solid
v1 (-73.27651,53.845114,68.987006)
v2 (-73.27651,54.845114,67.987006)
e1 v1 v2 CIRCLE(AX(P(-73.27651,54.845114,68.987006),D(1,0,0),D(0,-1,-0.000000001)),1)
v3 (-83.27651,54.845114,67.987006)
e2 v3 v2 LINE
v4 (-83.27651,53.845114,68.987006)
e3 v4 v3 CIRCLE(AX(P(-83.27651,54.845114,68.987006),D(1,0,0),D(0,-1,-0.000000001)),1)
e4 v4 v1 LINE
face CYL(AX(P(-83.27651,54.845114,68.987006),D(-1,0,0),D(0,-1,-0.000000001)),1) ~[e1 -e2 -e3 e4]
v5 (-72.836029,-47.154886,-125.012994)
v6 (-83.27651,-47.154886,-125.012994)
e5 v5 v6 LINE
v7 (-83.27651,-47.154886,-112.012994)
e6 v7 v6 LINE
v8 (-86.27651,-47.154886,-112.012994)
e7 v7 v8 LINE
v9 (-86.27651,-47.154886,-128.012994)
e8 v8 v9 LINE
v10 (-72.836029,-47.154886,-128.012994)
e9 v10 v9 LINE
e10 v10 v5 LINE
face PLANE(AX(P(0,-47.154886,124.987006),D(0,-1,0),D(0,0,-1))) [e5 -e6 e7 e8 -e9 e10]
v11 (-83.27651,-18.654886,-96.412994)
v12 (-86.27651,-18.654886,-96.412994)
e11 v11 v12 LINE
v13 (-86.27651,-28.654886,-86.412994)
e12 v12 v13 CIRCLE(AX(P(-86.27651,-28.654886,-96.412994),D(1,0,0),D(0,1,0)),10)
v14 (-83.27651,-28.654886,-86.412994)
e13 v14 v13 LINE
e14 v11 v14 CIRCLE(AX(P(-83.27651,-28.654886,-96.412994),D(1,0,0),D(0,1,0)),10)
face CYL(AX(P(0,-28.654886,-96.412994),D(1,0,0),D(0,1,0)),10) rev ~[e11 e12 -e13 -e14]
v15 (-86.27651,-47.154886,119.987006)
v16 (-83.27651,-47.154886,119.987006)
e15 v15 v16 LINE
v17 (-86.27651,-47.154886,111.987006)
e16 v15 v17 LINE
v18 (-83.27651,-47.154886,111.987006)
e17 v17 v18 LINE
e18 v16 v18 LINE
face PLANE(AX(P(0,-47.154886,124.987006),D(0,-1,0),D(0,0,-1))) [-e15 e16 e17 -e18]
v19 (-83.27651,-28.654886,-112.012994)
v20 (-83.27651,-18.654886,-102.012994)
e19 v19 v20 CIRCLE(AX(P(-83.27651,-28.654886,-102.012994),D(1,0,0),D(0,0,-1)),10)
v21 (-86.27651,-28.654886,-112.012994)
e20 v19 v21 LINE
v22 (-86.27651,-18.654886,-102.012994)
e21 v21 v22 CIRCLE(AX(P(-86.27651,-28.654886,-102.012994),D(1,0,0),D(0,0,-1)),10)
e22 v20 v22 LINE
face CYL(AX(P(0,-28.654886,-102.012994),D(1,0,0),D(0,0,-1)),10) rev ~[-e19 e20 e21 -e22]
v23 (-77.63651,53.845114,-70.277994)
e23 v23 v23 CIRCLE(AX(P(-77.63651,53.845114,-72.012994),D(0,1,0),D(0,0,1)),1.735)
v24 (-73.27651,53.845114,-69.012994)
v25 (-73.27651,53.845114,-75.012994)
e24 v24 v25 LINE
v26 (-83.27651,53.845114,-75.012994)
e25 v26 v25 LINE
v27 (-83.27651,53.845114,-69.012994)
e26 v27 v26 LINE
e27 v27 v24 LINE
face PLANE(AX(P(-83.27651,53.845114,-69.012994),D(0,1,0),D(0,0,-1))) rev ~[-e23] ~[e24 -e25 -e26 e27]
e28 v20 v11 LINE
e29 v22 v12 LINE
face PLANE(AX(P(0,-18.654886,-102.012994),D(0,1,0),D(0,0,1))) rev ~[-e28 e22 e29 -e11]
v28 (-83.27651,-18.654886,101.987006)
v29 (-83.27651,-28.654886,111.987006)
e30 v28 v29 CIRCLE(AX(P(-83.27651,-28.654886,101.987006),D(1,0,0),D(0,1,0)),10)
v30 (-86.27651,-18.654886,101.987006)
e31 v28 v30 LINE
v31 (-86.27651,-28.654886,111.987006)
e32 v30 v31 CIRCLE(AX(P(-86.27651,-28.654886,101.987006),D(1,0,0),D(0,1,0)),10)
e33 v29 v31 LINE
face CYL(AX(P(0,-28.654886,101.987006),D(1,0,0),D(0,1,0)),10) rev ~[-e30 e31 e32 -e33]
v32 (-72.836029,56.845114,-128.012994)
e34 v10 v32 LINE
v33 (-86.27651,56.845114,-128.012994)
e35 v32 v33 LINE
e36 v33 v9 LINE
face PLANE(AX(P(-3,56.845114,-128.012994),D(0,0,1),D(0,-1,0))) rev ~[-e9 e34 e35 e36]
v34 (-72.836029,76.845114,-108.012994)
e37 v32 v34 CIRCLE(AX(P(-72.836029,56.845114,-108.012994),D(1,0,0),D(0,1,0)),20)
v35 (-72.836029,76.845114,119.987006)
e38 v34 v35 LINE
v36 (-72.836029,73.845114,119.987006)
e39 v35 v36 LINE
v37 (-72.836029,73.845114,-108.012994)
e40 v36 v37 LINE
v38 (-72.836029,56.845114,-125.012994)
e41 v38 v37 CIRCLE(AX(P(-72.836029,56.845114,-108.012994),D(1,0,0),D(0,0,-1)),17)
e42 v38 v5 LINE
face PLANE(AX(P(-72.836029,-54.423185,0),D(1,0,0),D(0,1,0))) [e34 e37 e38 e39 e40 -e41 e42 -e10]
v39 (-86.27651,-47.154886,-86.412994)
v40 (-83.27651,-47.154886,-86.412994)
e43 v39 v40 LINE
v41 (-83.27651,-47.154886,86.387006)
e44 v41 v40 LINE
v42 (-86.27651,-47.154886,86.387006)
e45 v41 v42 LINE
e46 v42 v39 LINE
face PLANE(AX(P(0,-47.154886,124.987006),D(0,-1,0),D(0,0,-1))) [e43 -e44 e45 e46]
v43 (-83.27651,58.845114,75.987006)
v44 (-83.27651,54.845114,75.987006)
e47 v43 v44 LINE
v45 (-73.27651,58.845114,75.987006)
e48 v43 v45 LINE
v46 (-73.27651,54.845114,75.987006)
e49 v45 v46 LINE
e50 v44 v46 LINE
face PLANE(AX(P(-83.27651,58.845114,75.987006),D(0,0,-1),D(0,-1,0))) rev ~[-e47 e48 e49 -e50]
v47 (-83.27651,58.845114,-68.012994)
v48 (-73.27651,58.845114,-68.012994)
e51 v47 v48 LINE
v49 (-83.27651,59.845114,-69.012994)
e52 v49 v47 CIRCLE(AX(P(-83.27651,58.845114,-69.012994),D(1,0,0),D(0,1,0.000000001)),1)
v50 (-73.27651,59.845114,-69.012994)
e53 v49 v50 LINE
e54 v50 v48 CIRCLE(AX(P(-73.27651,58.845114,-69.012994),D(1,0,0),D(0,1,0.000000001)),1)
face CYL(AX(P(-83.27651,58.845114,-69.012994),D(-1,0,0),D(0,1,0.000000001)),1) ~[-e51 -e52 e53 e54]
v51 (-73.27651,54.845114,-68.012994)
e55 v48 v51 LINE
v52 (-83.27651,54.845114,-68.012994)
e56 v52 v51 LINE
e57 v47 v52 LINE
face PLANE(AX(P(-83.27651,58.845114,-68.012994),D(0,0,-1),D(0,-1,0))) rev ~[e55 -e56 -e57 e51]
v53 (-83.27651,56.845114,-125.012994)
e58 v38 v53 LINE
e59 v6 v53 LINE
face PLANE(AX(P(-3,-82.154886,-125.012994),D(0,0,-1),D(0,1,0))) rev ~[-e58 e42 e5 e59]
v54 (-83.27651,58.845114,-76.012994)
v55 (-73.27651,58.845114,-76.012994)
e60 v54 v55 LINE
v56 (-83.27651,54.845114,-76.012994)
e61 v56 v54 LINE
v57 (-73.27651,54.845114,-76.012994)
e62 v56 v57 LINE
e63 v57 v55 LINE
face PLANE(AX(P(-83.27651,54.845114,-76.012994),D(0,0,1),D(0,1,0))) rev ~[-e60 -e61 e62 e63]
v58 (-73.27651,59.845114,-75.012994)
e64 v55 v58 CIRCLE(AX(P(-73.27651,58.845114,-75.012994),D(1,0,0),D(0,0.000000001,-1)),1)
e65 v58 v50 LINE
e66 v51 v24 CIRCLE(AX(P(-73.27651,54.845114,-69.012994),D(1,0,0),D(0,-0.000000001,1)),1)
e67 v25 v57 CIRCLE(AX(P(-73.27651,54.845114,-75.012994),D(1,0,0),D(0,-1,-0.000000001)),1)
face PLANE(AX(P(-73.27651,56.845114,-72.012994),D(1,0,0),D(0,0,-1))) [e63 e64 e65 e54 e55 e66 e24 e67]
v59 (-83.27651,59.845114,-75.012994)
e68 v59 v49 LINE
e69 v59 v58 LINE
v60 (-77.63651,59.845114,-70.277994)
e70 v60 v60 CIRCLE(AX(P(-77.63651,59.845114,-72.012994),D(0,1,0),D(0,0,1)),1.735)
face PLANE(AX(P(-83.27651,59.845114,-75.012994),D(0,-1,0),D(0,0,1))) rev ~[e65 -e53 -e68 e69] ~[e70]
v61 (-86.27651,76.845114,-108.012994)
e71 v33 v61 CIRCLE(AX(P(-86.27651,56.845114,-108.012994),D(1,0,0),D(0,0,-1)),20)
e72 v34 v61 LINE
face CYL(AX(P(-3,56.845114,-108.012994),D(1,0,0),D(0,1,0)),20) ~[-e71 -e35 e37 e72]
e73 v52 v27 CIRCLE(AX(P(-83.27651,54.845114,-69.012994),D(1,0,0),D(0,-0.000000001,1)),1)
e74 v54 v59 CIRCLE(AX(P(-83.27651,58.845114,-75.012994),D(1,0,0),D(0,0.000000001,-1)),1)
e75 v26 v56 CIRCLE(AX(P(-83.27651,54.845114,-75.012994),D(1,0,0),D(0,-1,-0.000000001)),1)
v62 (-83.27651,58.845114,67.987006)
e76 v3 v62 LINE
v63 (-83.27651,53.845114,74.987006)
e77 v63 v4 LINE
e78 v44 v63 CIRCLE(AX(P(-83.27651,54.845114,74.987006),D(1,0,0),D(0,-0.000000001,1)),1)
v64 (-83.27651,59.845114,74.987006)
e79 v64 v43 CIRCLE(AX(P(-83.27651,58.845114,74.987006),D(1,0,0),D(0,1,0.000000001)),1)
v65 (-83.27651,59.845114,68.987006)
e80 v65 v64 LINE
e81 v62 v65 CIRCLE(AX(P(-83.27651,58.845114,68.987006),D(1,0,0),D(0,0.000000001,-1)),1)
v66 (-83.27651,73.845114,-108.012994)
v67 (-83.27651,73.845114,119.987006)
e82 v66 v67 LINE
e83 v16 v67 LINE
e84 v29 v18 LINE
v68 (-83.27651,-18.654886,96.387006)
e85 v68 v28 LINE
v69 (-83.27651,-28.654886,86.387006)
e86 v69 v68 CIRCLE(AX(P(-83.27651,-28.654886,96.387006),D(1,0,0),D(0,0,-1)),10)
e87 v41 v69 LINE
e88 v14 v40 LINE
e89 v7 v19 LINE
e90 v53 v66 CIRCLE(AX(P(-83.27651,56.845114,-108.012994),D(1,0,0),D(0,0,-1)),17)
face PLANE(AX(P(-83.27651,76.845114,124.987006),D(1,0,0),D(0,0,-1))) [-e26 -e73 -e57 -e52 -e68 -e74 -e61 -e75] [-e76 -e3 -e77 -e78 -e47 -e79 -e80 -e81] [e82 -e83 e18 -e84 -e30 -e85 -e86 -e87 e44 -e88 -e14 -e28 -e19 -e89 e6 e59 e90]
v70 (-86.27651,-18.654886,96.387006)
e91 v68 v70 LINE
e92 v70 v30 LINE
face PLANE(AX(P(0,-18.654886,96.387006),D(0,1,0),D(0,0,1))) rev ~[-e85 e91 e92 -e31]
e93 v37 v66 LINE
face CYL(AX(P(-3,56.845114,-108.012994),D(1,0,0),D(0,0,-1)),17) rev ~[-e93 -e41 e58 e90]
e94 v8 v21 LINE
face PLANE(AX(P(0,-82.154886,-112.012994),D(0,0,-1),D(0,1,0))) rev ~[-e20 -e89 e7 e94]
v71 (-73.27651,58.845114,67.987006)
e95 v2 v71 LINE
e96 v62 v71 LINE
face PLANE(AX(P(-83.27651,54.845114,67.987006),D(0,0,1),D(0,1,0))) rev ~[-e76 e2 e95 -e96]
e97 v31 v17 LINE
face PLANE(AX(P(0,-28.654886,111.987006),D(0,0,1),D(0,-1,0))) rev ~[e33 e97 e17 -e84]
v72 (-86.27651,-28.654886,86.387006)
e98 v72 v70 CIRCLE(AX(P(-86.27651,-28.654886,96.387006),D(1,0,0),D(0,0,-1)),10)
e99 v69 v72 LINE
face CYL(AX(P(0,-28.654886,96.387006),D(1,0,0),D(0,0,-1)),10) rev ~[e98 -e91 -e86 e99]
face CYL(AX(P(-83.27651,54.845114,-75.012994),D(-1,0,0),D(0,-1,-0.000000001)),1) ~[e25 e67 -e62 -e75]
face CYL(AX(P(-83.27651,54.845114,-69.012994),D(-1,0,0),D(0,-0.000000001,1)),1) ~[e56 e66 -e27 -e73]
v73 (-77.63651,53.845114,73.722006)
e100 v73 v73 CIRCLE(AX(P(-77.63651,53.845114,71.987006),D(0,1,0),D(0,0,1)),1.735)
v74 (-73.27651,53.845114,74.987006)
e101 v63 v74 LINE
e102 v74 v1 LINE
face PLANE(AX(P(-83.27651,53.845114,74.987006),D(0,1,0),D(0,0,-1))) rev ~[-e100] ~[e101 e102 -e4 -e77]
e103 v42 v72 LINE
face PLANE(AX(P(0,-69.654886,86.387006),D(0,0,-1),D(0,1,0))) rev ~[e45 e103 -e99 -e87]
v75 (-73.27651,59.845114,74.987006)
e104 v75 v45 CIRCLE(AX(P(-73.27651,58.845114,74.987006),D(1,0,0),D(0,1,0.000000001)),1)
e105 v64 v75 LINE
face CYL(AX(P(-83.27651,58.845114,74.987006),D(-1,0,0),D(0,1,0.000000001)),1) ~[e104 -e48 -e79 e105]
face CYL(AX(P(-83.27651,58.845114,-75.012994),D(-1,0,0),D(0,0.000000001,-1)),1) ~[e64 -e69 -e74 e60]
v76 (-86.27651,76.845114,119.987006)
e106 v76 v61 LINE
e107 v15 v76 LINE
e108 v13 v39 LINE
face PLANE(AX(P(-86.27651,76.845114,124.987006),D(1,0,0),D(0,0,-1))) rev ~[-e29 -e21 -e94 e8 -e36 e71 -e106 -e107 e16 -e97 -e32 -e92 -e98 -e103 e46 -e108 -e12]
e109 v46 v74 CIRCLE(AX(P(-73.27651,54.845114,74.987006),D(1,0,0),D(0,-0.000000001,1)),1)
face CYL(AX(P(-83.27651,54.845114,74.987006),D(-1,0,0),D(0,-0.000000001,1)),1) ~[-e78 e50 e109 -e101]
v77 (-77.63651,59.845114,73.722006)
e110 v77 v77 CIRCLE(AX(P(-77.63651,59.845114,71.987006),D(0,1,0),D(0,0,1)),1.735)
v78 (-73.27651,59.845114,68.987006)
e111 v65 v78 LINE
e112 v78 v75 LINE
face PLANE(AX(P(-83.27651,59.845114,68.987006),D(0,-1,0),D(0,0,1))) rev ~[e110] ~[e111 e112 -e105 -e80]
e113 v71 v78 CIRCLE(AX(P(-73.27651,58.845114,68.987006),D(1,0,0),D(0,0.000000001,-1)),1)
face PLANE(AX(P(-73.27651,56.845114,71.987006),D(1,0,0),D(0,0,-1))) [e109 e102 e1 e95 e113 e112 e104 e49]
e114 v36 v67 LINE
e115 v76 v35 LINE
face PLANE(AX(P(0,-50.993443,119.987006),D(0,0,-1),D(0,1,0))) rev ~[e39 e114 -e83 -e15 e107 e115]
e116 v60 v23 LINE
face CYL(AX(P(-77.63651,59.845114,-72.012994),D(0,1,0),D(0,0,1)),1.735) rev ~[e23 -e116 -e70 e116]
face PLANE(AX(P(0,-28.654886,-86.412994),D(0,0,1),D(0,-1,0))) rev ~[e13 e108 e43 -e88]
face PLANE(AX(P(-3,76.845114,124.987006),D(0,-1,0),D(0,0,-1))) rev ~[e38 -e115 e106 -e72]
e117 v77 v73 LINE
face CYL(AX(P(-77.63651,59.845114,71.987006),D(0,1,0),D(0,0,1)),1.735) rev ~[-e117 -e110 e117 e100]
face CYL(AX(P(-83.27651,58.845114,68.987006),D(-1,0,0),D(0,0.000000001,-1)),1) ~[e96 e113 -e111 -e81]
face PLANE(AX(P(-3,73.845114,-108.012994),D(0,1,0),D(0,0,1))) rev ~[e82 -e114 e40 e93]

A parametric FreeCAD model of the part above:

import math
import FreeCAD as App
import Part
import Sketcher


def add_polygon(sketch, points):
    """Adds a closed chain of lines whose ends are joined by coincident constraints."""
    first, n = sketch.GeometryCount, len(points)
    for a, b in zip(points, points[1:] + points[:1]):
        sketch.addGeometry(Part.LineSegment(App.Vector(*a, 0), App.Vector(*b, 0)), False)
    for i in range(n):
        sketch.addConstraint(Sketcher.Constraint("Coincident", first + i, 2, first + (i + 1) % n, 1))

doc = App.newDocument("Part")
body = doc.addObject("PartDesign::Body", "Body")

sketch1 = doc.addObject("Sketcher::SketchObject", "Sketch")
body.addObject(sketch1)
sketch1.AttachmentSupport = (doc.YZ_Plane, [""])
sketch1.MapMode = "FlatFace"
sketch1.addGeometry([
    Part.LineSegment(App.Vector(-82.2, 77.9, 0), App.Vector(-82.2, -77.9, 0)),
    Part.LineSegment(App.Vector(-82.2, -77.9, 0), App.Vector(-78.2, -77.9, 0)),
    Part.ArcOfCircle(Part.Circle(App.Vector(-78.2, -86.4, 0), App.Vector(0, 0, 1), 8.5), math.radians(-90), math.radians(90)),
    Part.LineSegment(App.Vector(-78.2, -94.9, 0), App.Vector(-82.2, -94.9, 0)),
    Part.LineSegment(App.Vector(-82.2, -94.9, 0), App.Vector(-82.2, -125, 0)),
    Part.LineSegment(App.Vector(-82.2, -125, 0), App.Vector(51.8, -125, 0)),
    Part.LineSegment(App.Vector(51.8, -125, 0), App.Vector(51.8, 125, 0)),
    Part.LineSegment(App.Vector(51.8, 125, 0), App.Vector(-82.2, 125, 0)),
    Part.LineSegment(App.Vector(-82.2, 125, 0), App.Vector(-82.2, 94.9, 0)),
    Part.LineSegment(App.Vector(-82.2, 94.9, 0), App.Vector(-78.2, 94.9, 0)),
    Part.ArcOfCircle(Part.Circle(App.Vector(-78.2, 86.4, 0), App.Vector(0, 0, 1), 8.5), math.radians(-90), math.radians(90)),
    Part.LineSegment(App.Vector(-78.2, 77.9, 0), App.Vector(-82.2, 77.9, 0)),
    Part.Circle(App.Vector(-28.7, 102, 0), App.Vector(0, 0, 1), 10),
    Part.Circle(App.Vector(-28.7, -102, 0), App.Vector(0, 0, 1), 10),
], False)
sketch1.addConstraint([
    Sketcher.Constraint("Coincident", 0, 2, 1, 1),
    Sketcher.Constraint("Tangent", 1, 2, 2, 2),
    Sketcher.Constraint("Tangent", 2, 1, 3, 1),
    Sketcher.Constraint("Coincident", 3, 2, 4, 1),
    Sketcher.Constraint("Coincident", 4, 2, 5, 1),
    Sketcher.Constraint("Coincident", 5, 2, 6, 1),
    Sketcher.Constraint("Coincident", 6, 2, 7, 1),
    Sketcher.Constraint("Coincident", 7, 2, 8, 1),
    Sketcher.Constraint("Coincident", 8, 2, 9, 1),
    Sketcher.Constraint("Tangent", 9, 2, 10, 2),
    Sketcher.Constraint("Tangent", 10, 1, 11, 1),
    Sketcher.Constraint("Coincident", 11, 2, 0, 1),
    Sketcher.Constraint("Vertical", 0),
    Sketcher.Constraint("Horizontal", 1),
    Sketcher.Constraint("Horizontal", 3),
    Sketcher.Constraint("Vertical", 4),
    Sketcher.Constraint("Horizontal", 5),
    Sketcher.Constraint("Vertical", 6),
    Sketcher.Constraint("Horizontal", 7),
    Sketcher.Constraint("Vertical", 8),
    Sketcher.Constraint("Horizontal", 9),
    Sketcher.Constraint("Horizontal", 11),
    Sketcher.Constraint("Equal", 2, 10),
    Sketcher.Constraint("Equal", 12, 13),
    Sketcher.Constraint("Vertical", 2, 3, 10, 3),
    Sketcher.Constraint("Vertical", 12, 3, 13, 3),
    Sketcher.Constraint("Vertical", 0, 2, 3, 2),
    Sketcher.Constraint("Vertical", 4, 2, 7, 2),
    Sketcher.Constraint("Equal", 4, 8),
    Sketcher.Constraint("Diameter", 12, 20.0),
    Sketcher.Constraint("Radius", 2, 8.5),
    Sketcher.Constraint("DistanceX", 1, 1, 1, 2, 4.0),
    Sketcher.Constraint("DistanceX", 5, 1, 5, 2, 134.0),
    Sketcher.Constraint("DistanceY", 6, 1, 6, 2, 250.0),
    Sketcher.Constraint("DistanceY", 0, 2, 0, 1, 155.8),
    Sketcher.Constraint("DistanceY", 13, 3, 12, 3, 204.0),
    Sketcher.Constraint("DistanceY", 5, 2, 13, 3, 23.0),
    Sketcher.Constraint("DistanceX", 10, 3, 12, 3, 49.5),
    Sketcher.Constraint("DistanceX", 2, 3, -1, 1, 78.154886),
    Sketcher.Constraint("DistanceY", 2, 3, -1, 1, 86.412994),
])
pad1 = doc.addObject("PartDesign::Pad", "Pad")
body.addObject(pad1)
pad1.Profile = sketch1
pad1.Length = 3
pad1.Reversed = True

sketch2 = doc.addObject("Sketcher::SketchObject", "Sketch001")
body.addObject(sketch2)
sketch2.AttachmentSupport = (doc.YZ_Plane, [""])
sketch2.MapMode = "FlatFace"
sketch2.addGeometry([
    Part.LineSegment(App.Vector(76.8, 125, 0), App.Vector(51.8, 125, 0)),
    Part.LineSegment(App.Vector(51.8, 125, 0), App.Vector(51.8, -125, 0)),
    Part.LineSegment(App.Vector(51.8, -125, 0), App.Vector(-82.2, -125, 0)),
    Part.LineSegment(App.Vector(-82.2, -125, 0), App.Vector(-82.2, -128, 0)),
    Part.LineSegment(App.Vector(-82.2, -128, 0), App.Vector(56.8, -128, 0)),
    Part.ArcOfCircle(Part.Circle(App.Vector(56.8, -108, 0), App.Vector(0, 0, 1), 20), math.radians(-90), math.radians(0)),
    Part.LineSegment(App.Vector(76.8, -108, 0), App.Vector(76.8, 125, 0)),
], False)
sketch2.addConstraint([
    Sketcher.Constraint("Coincident", 0, 2, 1, 1),
    Sketcher.Constraint("Coincident", 1, 2, 2, 1),
    Sketcher.Constraint("Coincident", 2, 2, 3, 1),
    Sketcher.Constraint("Coincident", 3, 2, 4, 1),
    Sketcher.Constraint("Tangent", 4, 2, 5, 1),
    Sketcher.Constraint("Tangent", 5, 2, 6, 1),
    Sketcher.Constraint("Coincident", 6, 2, 0, 1),
    Sketcher.Constraint("Horizontal", 0),
    Sketcher.Constraint("Vertical", 1),
    Sketcher.Constraint("Horizontal", 2),
    Sketcher.Constraint("Vertical", 3),
    Sketcher.Constraint("Horizontal", 4),
    Sketcher.Constraint("Vertical", 6),
    Sketcher.Constraint("Radius", 5, 20.0),
    Sketcher.Constraint("DistanceX", 0, 2, 0, 1, 25.0),
    Sketcher.Constraint("DistanceX", 2, 2, 2, 1, 134.0),
    Sketcher.Constraint("DistanceY", 1, 2, 1, 1, 250.0),
    Sketcher.Constraint("DistanceY", 3, 2, 3, 1, 3.0),
    Sketcher.Constraint("DistanceX", -1, 1, 5, 3, 56.845114),
    Sketcher.Constraint("DistanceY", 5, 3, -1, 1, 108.012994),
])
pad2 = doc.addObject("PartDesign::Pad", "Pad001")
body.addObject(pad2)
pad2.Profile = sketch2
pad2.Length = 3
pad2.Reversed = True
body2 = doc.addObject("PartDesign::Body", "Body001")

sketch3 = doc.addObject("Sketcher::SketchObject", "Sketch002")
body2.addObject(sketch3)
sketch3.AttachmentSupport = (doc.getObject("YZ_Plane001"), [""])
sketch3.MapMode = "FlatFace"
sketch3.AttachmentOffset = App.Placement(App.Vector(0, 0, -3), App.Rotation())
sketch3.addGeometry([
    Part.LineSegment(App.Vector(59.8, -69, 0), App.Vector(59.8, -75, 0)),
    Part.ArcOfCircle(Part.Circle(App.Vector(58.8, -75, 0), App.Vector(0, 0, 1), 1), math.radians(-90), math.radians(0)),
    Part.LineSegment(App.Vector(58.8, -76, 0), App.Vector(54.8, -76, 0)),
    Part.ArcOfCircle(Part.Circle(App.Vector(54.8, -75, 0), App.Vector(0, 0, 1), 1), math.radians(-180), math.radians(-90)),
    Part.LineSegment(App.Vector(53.8, -75, 0), App.Vector(53.8, -69, 0)),
    Part.ArcOfCircle(Part.Circle(App.Vector(54.8, -69, 0), App.Vector(0, 0, 1), 1), math.radians(90), math.radians(180)),
    Part.LineSegment(App.Vector(54.8, -68, 0), App.Vector(58.8, -68, 0)),
    Part.ArcOfCircle(Part.Circle(App.Vector(58.8, -69, 0), App.Vector(0, 0, 1), 1), math.radians(0), math.radians(90)),
], False)
sketch3.addConstraint([
    Sketcher.Constraint("Tangent", 0, 2, 1, 2),
    Sketcher.Constraint("Tangent", 1, 1, 2, 1),
    Sketcher.Constraint("Tangent", 2, 2, 3, 2),
    Sketcher.Constraint("Tangent", 3, 1, 4, 1),
    Sketcher.Constraint("Tangent", 4, 2, 5, 2),
    Sketcher.Constraint("Tangent", 5, 1, 6, 1),
    Sketcher.Constraint("Tangent", 6, 2, 7, 2),
    Sketcher.Constraint("Tangent", 7, 1, 0, 1),
    Sketcher.Constraint("Vertical", 0),
    Sketcher.Constraint("Horizontal", 2),
    Sketcher.Constraint("Vertical", 4),
    Sketcher.Constraint("Horizontal", 6),
    Sketcher.Constraint("Equal", 1, 3),
    Sketcher.Constraint("Equal", 3, 5),
    Sketcher.Constraint("Equal", 5, 7),
    Sketcher.Constraint("Radius", 1, 1.0),
    Sketcher.Constraint("DistanceX", 2, 2, 2, 1, 4.0),
    Sketcher.Constraint("DistanceY", 0, 2, 0, 1, 6.0),
    Sketcher.Constraint("DistanceX", -1, 1, 1, 3, 58.845114),
    Sketcher.Constraint("DistanceY", 1, 3, -1, 1, 75.012994),
])
pad3 = doc.addObject("PartDesign::Pad", "Pad002")
body2.addObject(pad3)
pad3.Profile = sketch3
pad3.Length = 10
pad3.Reversed = True
body3 = doc.addObject("PartDesign::Body", "Body002")

sketch4 = doc.addObject("Sketcher::SketchObject", "Sketch003")
body3.addObject(sketch4)
sketch4.AttachmentSupport = (doc.getObject("YZ_Plane002"), [""])
sketch4.MapMode = "FlatFace"
sketch4.AttachmentOffset = App.Placement(App.Vector(0, 0, -3), App.Rotation())
sketch4.addGeometry([
    Part.LineSegment(App.Vector(58.8, 68, 0), App.Vector(54.8, 68, 0)),
    Part.ArcOfCircle(Part.Circle(App.Vector(54.8, 69, 0), App.Vector(0, 0, 1), 1), math.radians(-180), math.radians(-90)),
    Part.LineSegment(App.Vector(53.8, 69, 0), App.Vector(53.8, 75, 0)),
    Part.ArcOfCircle(Part.Circle(App.Vector(54.8, 75, 0), App.Vector(0, 0, 1), 1), math.radians(90), math.radians(180)),
    Part.LineSegment(App.Vector(54.8, 76, 0), App.Vector(58.8, 76, 0)),
    Part.ArcOfCircle(Part.Circle(App.Vector(58.8, 75, 0), App.Vector(0, 0, 1), 1), math.radians(0), math.radians(90)),
    Part.LineSegment(App.Vector(59.8, 75, 0), App.Vector(59.8, 69, 0)),
    Part.ArcOfCircle(Part.Circle(App.Vector(58.8, 69, 0), App.Vector(0, 0, 1), 1), math.radians(-90), math.radians(0)),
], False)
sketch4.addConstraint([
    Sketcher.Constraint("Tangent", 0, 2, 1, 2),
    Sketcher.Constraint("Tangent", 1, 1, 2, 1),
    Sketcher.Constraint("Tangent", 2, 2, 3, 2),
    Sketcher.Constraint("Tangent", 3, 1, 4, 1),
    Sketcher.Constraint("Tangent", 4, 2, 5, 2),
    Sketcher.Constraint("Tangent", 5, 1, 6, 1),
    Sketcher.Constraint("Tangent", 6, 2, 7, 2),
    Sketcher.Constraint("Tangent", 7, 1, 0, 1),
    Sketcher.Constraint("Horizontal", 0),
    Sketcher.Constraint("Vertical", 2),
    Sketcher.Constraint("Horizontal", 4),
    Sketcher.Constraint("Vertical", 6),
    Sketcher.Constraint("Equal", 1, 3),
    Sketcher.Constraint("Equal", 3, 5),
    Sketcher.Constraint("Equal", 5, 7),
    Sketcher.Constraint("Radius", 1, 1.0),
    Sketcher.Constraint("DistanceX", 0, 2, 0, 1, 4.0),
    Sketcher.Constraint("DistanceY", 2, 1, 2, 2, 6.0),
    Sketcher.Constraint("DistanceX", -1, 1, 1, 3, 54.845114),
    Sketcher.Constraint("DistanceY", -1, 1, 1, 3, 68.987006),
])
pad4 = doc.addObject("PartDesign::Pad", "Pad003")
body3.addObject(pad4)
pad4.Profile = sketch4
pad4.Length = 10
pad4.Reversed = True
body4 = doc.addObject("PartDesign::Body", "Body003")

sketch5 = doc.addObject("Sketcher::SketchObject", "Sketch004")
body4.addObject(sketch5)
sketch5.AttachmentSupport = (doc.getObject("XZ_Plane003"), [""])
sketch5.MapMode = "FlatFace"
sketch5.AttachmentOffset = App.Placement(App.Vector(0, 0, -76.845114), App.Rotation())
add_polygon(sketch5, [(-86.3, -128), (-86.3, 125), (-83.3, 125), (-83.3, -128)])
sketch5.addConstraint([
    Sketcher.Constraint("Vertical", 0),
    Sketcher.Constraint("Horizontal", 1),
    Sketcher.Constraint("Vertical", 2),
    Sketcher.Constraint("Horizontal", 3),
    Sketcher.Constraint("DistanceX", 1, 1, 1, 2, 3.0),
    Sketcher.Constraint("DistanceY", 0, 1, 0, 2, 253.0),
    Sketcher.Constraint("DistanceX", 0, 2, -1, 1, 86.27651),
    Sketcher.Constraint("DistanceY", -1, 1, 0, 2, 124.987006),
])
pad5 = doc.addObject("PartDesign::Pad", "Pad004")
body4.addObject(pad5)
pad5.Profile = sketch5
pad5.Length = 159

sketch6 = doc.addObject("Sketcher::SketchObject", "Sketch005")
body4.addObject(sketch6)
sketch6.AttachmentSupport = (doc.getObject("YZ_Plane003"), [""])
sketch6.MapMode = "FlatFace"
sketch6.AttachmentOffset = App.Placement(App.Vector(0, 0, -83.27651), App.Rotation())
sketch6.addGeometry([
    Part.LineSegment(App.Vector(59.8, -69, 0), App.Vector(59.8, -75, 0)),
    Part.ArcOfCircle(Part.Circle(App.Vector(58.8, -75, 0), App.Vector(0, 0, 1), 1), math.radians(-90), math.radians(0)),
    Part.LineSegment(App.Vector(58.8, -76, 0), App.Vector(54.8, -76, 0)),
    Part.ArcOfCircle(Part.Circle(App.Vector(54.8, -75, 0), App.Vector(0, 0, 1), 1), math.radians(-180), math.radians(-90)),
    Part.LineSegment(App.Vector(53.8, -75, 0), App.Vector(53.8, -69, 0)),
    Part.ArcOfCircle(Part.Circle(App.Vector(54.8, -69, 0), App.Vector(0, 0, 1), 1), math.radians(90), math.radians(180)),
    Part.LineSegment(App.Vector(54.8, -68, 0), App.Vector(58.8, -68, 0)),
    Part.ArcOfCircle(Part.Circle(App.Vector(58.8, -69, 0), App.Vector(0, 0, 1), 1), math.radians(0), math.radians(90)),
    Part.LineSegment(App.Vector(59.8, 75, 0), App.Vector(59.8, 69, 0)),
    Part.ArcOfCircle(Part.Circle(App.Vector(58.8, 69, 0), App.Vector(0, 0, 1), 1), math.radians(-90), math.radians(0)),
    Part.LineSegment(App.Vector(58.8, 68, 0), App.Vector(54.8, 68, 0)),
    Part.ArcOfCircle(Part.Circle(App.Vector(54.8, 69, 0), App.Vector(0, 0, 1), 1), math.radians(-180), math.radians(-90)),
    Part.LineSegment(App.Vector(53.8, 69, 0), App.Vector(53.8, 75, 0)),
    Part.ArcOfCircle(Part.Circle(App.Vector(54.8, 75, 0), App.Vector(0, 0, 1), 1), math.radians(90), math.radians(180)),
    Part.LineSegment(App.Vector(54.8, 76, 0), App.Vector(58.8, 76, 0)),
    Part.ArcOfCircle(Part.Circle(App.Vector(58.8, 75, 0), App.Vector(0, 0, 1), 1), math.radians(0), math.radians(90)),
], False)
sketch6.addConstraint([
    Sketcher.Constraint("Tangent", 0, 2, 1, 2),
    Sketcher.Constraint("Tangent", 1, 1, 2, 1),
    Sketcher.Constraint("Tangent", 2, 2, 3, 2),
    Sketcher.Constraint("Tangent", 3, 1, 4, 1),
    Sketcher.Constraint("Tangent", 4, 2, 5, 2),
    Sketcher.Constraint("Tangent", 5, 1, 6, 1),
    Sketcher.Constraint("Tangent", 6, 2, 7, 2),
    Sketcher.Constraint("Tangent", 7, 1, 0, 1),
    Sketcher.Constraint("Tangent", 8, 2, 9, 2),
    Sketcher.Constraint("Tangent", 9, 1, 10, 1),
    Sketcher.Constraint("Tangent", 10, 2, 11, 2),
    Sketcher.Constraint("Tangent", 11, 1, 12, 1),
    Sketcher.Constraint("Tangent", 12, 2, 13, 2),
    Sketcher.Constraint("Tangent", 13, 1, 14, 1),
    Sketcher.Constraint("Tangent", 14, 2, 15, 2),
    Sketcher.Constraint("Tangent", 15, 1, 8, 1),
    Sketcher.Constraint("Vertical", 0),
    Sketcher.Constraint("Horizontal", 2),
    Sketcher.Constraint("Vertical", 4),
    Sketcher.Constraint("Horizontal", 6),
    Sketcher.Constraint("Vertical", 8),
    Sketcher.Constraint("Horizontal", 10),
    Sketcher.Constraint("Vertical", 12),
    Sketcher.Constraint("Horizontal", 14),
    Sketcher.Constraint("Equal", 1, 3),
    Sketcher.Constraint("Equal", 3, 5),
    Sketcher.Constraint("Equal", 5, 7),
    Sketcher.Constraint("Equal", 7, 9),
    Sketcher.Constraint("Equal", 9, 11),
    Sketcher.Constraint("Equal", 11, 13),
    Sketcher.Constraint("Equal", 13, 15),
    Sketcher.Constraint("Vertical", 7, 3, 9, 3),
    Sketcher.Constraint("Vertical", 5, 3, 11, 3),
    Sketcher.Constraint("Equal", 4, 8),
    Sketcher.Constraint("Radius", 1, 1.0),
    Sketcher.Constraint("DistanceX", 2, 2, 2, 1, 4.0),
    Sketcher.Constraint("DistanceY", 0, 2, 0, 1, 6.0),
    Sketcher.Constraint("DistanceY", 7, 3, 9, 3, 138.0),
    Sketcher.Constraint("DistanceX", -1, 1, 1, 3, 58.845114),
    Sketcher.Constraint("DistanceY", 1, 3, -1, 1, 75.012994),
])
pad6 = doc.addObject("PartDesign::Pad", "Pad005")
body4.addObject(pad6)
pad6.Profile = sketch6
pad6.Length = 10
body5 = doc.addObject("PartDesign::Body", "Body004")
body5.AllowCompound = True

sketch7 = doc.addObject("Sketcher::SketchObject", "Sketch006")
body5.addObject(sketch7)
sketch7.AttachmentSupport = (doc.getObject("XZ_Plane004"), [""])
sketch7.MapMode = "FlatFace"
sketch7.AttachmentOffset = App.Placement(App.Vector(0, 0, -59.845114), App.Rotation())
sketch7.addGeometry([
    Part.Circle(App.Vector(-77.6, 72, 0), App.Vector(0, 0, 1), 1.7),
    Part.Circle(App.Vector(-77.6, -72, 0), App.Vector(0, 0, 1), 1.7),
    Part.Circle(App.Vector(-8.6, 72, 0), App.Vector(0, 0, 1), 1.7),
    Part.Circle(App.Vector(-8.6, -72, 0), App.Vector(0, 0, 1), 1.7),
], False)
sketch7.addConstraint([
    Sketcher.Constraint("Equal", 0, 1),
    Sketcher.Constraint("Equal", 1, 2),
    Sketcher.Constraint("Equal", 2, 3),
    Sketcher.Constraint("Horizontal", 0, 3, 2, 3),
    Sketcher.Constraint("Horizontal", 1, 3, 3, 3),
    Sketcher.Constraint("Vertical", 0, 3, 1, 3),
    Sketcher.Constraint("Vertical", 2, 3, 3, 3),
    Sketcher.Constraint("Diameter", 0, 3.47),
    Sketcher.Constraint("DistanceY", 1, 3, 0, 3, 144.0),
    Sketcher.Constraint("DistanceX", 2, 3, -1, 1, 8.64),
    Sketcher.Constraint("DistanceX", 0, 3, -1, 1, 77.63651),
    Sketcher.Constraint("DistanceY", -1, 1, 0, 3, 71.987006),
])
pad7 = doc.addObject("PartDesign::Pad", "Pad006")
body5.addObject(pad7)
pad7.Profile = sketch7
pad7.Length = 10
doc.recompute()

body6 = doc.addObject("PartDesign::Body", "Body005")
body6.BaseFeature = body5
boolean = doc.addObject("PartDesign::Boolean", "Boolean")
body2.addObject(boolean)
boolean.Type = "Cut"
boolean.addObjects([body6])
doc.recompute()

body7 = doc.addObject("PartDesign::Body", "Body006")
body7.BaseFeature = body5
boolean2 = doc.addObject("PartDesign::Boolean", "Boolean001")
body3.addObject(boolean2)
boolean2.Type = "Cut"
boolean2.addObjects([body7])
doc.recompute()

boolean3 = doc.addObject("PartDesign::Boolean", "Boolean002")
body4.addObject(boolean3)
boolean3.Type = "Cut"
boolean3.addObjects([body5])
body.AllowCompound = True
doc.recompute()

boolean4 = doc.addObject("PartDesign::Boolean", "Boolean003")
body.addObject(boolean4)
boolean4.Type = "Fuse"
boolean4.addObjects([body4])

sketch8 = doc.addObject("Sketcher::SketchObject", "Sketch007")
body.addObject(sketch8)
sketch8.AttachmentSupport = (doc.YZ_Plane, [""])
sketch8.MapMode = "FlatFace"
sketch8.AttachmentOffset = App.Placement(App.Vector(0, 0, -3), App.Rotation())
sketch8.addGeometry([
    Part.LineSegment(App.Vector(73.8, 125, 0), App.Vector(76.8, 125, 0)),
    Part.LineSegment(App.Vector(76.8, 125, 0), App.Vector(76.8, -108, 0)),
    Part.ArcOfCircle(Part.Circle(App.Vector(56.8, -108, 0), App.Vector(0, 0, 1), 20), math.radians(-90), math.radians(0)),
    Part.LineSegment(App.Vector(56.8, -128, 0), App.Vector(-82.2, -128, 0)),
    Part.LineSegment(App.Vector(-82.2, -128, 0), App.Vector(-82.2, -125, 0)),
    Part.LineSegment(App.Vector(-82.2, -125, 0), App.Vector(56.8, -125, 0)),
    Part.ArcOfCircle(Part.Circle(App.Vector(56.8, -108, 0), App.Vector(0, 0, 1), 17), math.radians(-90), math.radians(0)),
    Part.LineSegment(App.Vector(73.8, -108, 0), App.Vector(73.8, 125, 0)),
], False)
sketch8.addConstraint([
    Sketcher.Constraint("Coincident", 0, 2, 1, 1),
    Sketcher.Constraint("Tangent", 1, 2, 2, 2),
    Sketcher.Constraint("Tangent", 2, 1, 3, 1),
    Sketcher.Constraint("Coincident", 3, 2, 4, 1),
    Sketcher.Constraint("Coincident", 4, 2, 5, 1),
    Sketcher.Constraint("Tangent", 5, 2, 6, 1),
    Sketcher.Constraint("Tangent", 6, 2, 7, 1),
    Sketcher.Constraint("Coincident", 7, 2, 0, 1),
    Sketcher.Constraint("Horizontal", 0),
    Sketcher.Constraint("Vertical", 1),
    Sketcher.Constraint("Horizontal", 3),
    Sketcher.Constraint("Vertical", 4),
    Sketcher.Constraint("Horizontal", 5),
    Sketcher.Constraint("Vertical", 7),
    Sketcher.Constraint("Coincident", 6, 3, 2, 3),
    Sketcher.Constraint("Radius", 2, 20.0),
    Sketcher.Constraint("Radius", 6, 17.0),
    Sketcher.Constraint("DistanceX", 3, 2, 3, 1, 139.0),
    Sketcher.Constraint("DistanceY", 1, 2, 1, 1, 233.0),
    Sketcher.Constraint("DistanceX", -1, 1, 2, 3, 56.845114),
    Sketcher.Constraint("DistanceY", 2, 3, -1, 1, 108.012994),
])
pad8 = doc.addObject("PartDesign::Pad", "Pad007")
body.addObject(pad8)
pad8.Profile = sketch8
pad8.Length = 80.27651
pad8.Reversed = True

sketch9 = doc.addObject("Sketcher::SketchObject", "Sketch008")
body.addObject(sketch9)
sketch9.AttachmentSupport = (doc.YZ_Plane, [""])
sketch9.MapMode = "FlatFace"
sketch9.addGeometry([
    Part.LineSegment(App.Vector(-28.7, 112, 0), App.Vector(-82.2, 112, 0)),
    Part.LineSegment(App.Vector(-82.2, 112, 0), App.Vector(-82.2, 77.9, 0)),
    Part.LineSegment(App.Vector(-82.2, 77.9, 0), App.Vector(-78.2, 77.9, 0)),
    Part.ArcOfCircle(Part.Circle(App.Vector(-78.2, 86.4, 0), App.Vector(0, 0, 1), 8.5), math.radians(-90), math.radians(0)),
    Part.LineSegment(App.Vector(-69.7, 86.4, 0), App.Vector(-28.7, 86.4, 0)),
    Part.ArcOfCircle(Part.Circle(App.Vector(-28.7, 96.4, 0), App.Vector(0, 0, 1), 10), math.radians(-90), math.radians(0)),
    Part.LineSegment(App.Vector(-18.7, 96.4, 0), App.Vector(-18.7, 102, 0)),
    Part.ArcOfCircle(Part.Circle(App.Vector(-28.7, 102, 0), App.Vector(0, 0, 1), 10), math.radians(0), math.radians(90)),
    Part.LineSegment(App.Vector(-82.2, -112, 0), App.Vector(-28.7, -112, 0)),
    Part.ArcOfCircle(Part.Circle(App.Vector(-28.7, -102, 0), App.Vector(0, 0, 1), 10), math.radians(-90), math.radians(0)),
    Part.LineSegment(App.Vector(-18.7, -102, 0), App.Vector(-18.7, -96.4, 0)),
    Part.ArcOfCircle(Part.Circle(App.Vector(-28.7, -96.4, 0), App.Vector(0, 0, 1), 10), math.radians(0), math.radians(90)),
    Part.LineSegment(App.Vector(-28.7, -86.4, 0), App.Vector(-69.7, -86.4, 0)),
    Part.ArcOfCircle(Part.Circle(App.Vector(-78.2, -86.4, 0), App.Vector(0, 0, 1), 8.5), math.radians(0), math.radians(90)),
    Part.LineSegment(App.Vector(-78.2, -77.9, 0), App.Vector(-82.2, -77.9, 0)),
    Part.LineSegment(App.Vector(-82.2, -77.9, 0), App.Vector(-82.2, -112, 0)),
], False)
sketch9.addConstraint([
    Sketcher.Constraint("Coincident", 0, 2, 1, 1),
    Sketcher.Constraint("Coincident", 1, 2, 2, 1),
    Sketcher.Constraint("Tangent", 2, 2, 3, 1),
    Sketcher.Constraint("Coincident", 3, 2, 4, 1),
    Sketcher.Constraint("Tangent", 4, 2, 5, 1),
    Sketcher.Constraint("Tangent", 5, 2, 6, 1),
    Sketcher.Constraint("Tangent", 6, 2, 7, 1),
    Sketcher.Constraint("Tangent", 7, 2, 0, 1),
    Sketcher.Constraint("Tangent", 8, 2, 9, 1),
    Sketcher.Constraint("Tangent", 9, 2, 10, 1),
    Sketcher.Constraint("Tangent", 10, 2, 11, 1),
    Sketcher.Constraint("Tangent", 11, 2, 12, 1),
    Sketcher.Constraint("Coincident", 12, 2, 13, 1),
    Sketcher.Constraint("Tangent", 13, 2, 14, 1),
    Sketcher.Constraint("Coincident", 14, 2, 15, 1),
    Sketcher.Constraint("Coincident", 15, 2, 8, 1),
    Sketcher.Constraint("Horizontal", 0),
    Sketcher.Constraint("Vertical", 1),
    Sketcher.Constraint("Horizontal", 2),
    Sketcher.Constraint("Horizontal", 4),
    Sketcher.Constraint("Vertical", 6),
    Sketcher.Constraint("Horizontal", 8),
    Sketcher.Constraint("Vertical", 10),
    Sketcher.Constraint("Horizontal", 12),
    Sketcher.Constraint("Horizontal", 14),
    Sketcher.Constraint("Vertical", 15),
    Sketcher.Constraint("Equal", 5, 7),
    Sketcher.Constraint("Equal", 7, 9),
    Sketcher.Constraint("Equal", 9, 11),
    Sketcher.Constraint("Equal", 3, 13),
    Sketcher.Constraint("Horizontal", 13, 3, 11, 2),
    Sketcher.Constraint("Vertical", 7, 3, 9, 3),
    Sketcher.Constraint("Vertical", 3, 3, 13, 3),
    Sketcher.Constraint("Vertical", 1, 2, 14, 2),
    Sketcher.Constraint("Equal", 6, 10),
    Sketcher.Constraint("Equal", 1, 15),
    Sketcher.Constraint("Radius", 5, 10.0),
    Sketcher.Constraint("Radius", 3, 8.5),
    Sketcher.Constraint("DistanceX", 2, 1, 2, 2, 4.0),
    Sketcher.Constraint("DistanceX", 4, 1, 4, 2, 41.0),
    Sketcher.Constraint("DistanceY", 1, 2, 1, 1, 34.1),
    Sketcher.Constraint("DistanceY", 9, 3, 7, 3, 204.0),
    Sketcher.Constraint("DistanceX", 3, 3, -1, 1, 78.154886),
    Sketcher.Constraint("DistanceY", -1, 1, 3, 3, 86.387006),
])
pocket1 = doc.addObject("PartDesign::Pocket", "Pocket")
body.addObject(pocket1)
pocket1.Profile = sketch9
pocket1.Length = 143

sketch10 = doc.addObject("Sketcher::SketchObject", "Sketch009")
body.addObject(sketch10)
sketch10.AttachmentSupport = (doc.YZ_Plane, [""])
sketch10.MapMode = "FlatFace"
add_polygon(sketch10, [(-47, 125), (-82, 125), (-82, -128), (-47, -128)])
sketch10.addConstraint([
    Sketcher.Constraint("Horizontal", 0),
    Sketcher.Constraint("Vertical", 1),
    Sketcher.Constraint("Horizontal", 2),
    Sketcher.Constraint("Vertical", 3),
    Sketcher.Constraint("DistanceX", 0, 2, 0, 1, 35.0),
    Sketcher.Constraint("DistanceY", 1, 2, 1, 1, 253.0),
    Sketcher.Constraint("DistanceX", 0, 2, -1, 1, 82.154886),
    Sketcher.Constraint("DistanceY", -1, 1, 0, 2, 124.987006),
])
pocket2 = doc.addObject("PartDesign::Pocket", "Pocket001")
body.addObject(pocket2)
pocket2.Profile = sketch10
pocket2.Length = 143

sketch11 = doc.addObject("Sketcher::SketchObject", "Sketch010")
body.addObject(sketch11)
sketch11.AttachmentSupport = (doc.YZ_Plane, [""])
sketch11.MapMode = "FlatFace"
sketch11.addGeometry([
    Part.LineSegment(App.Vector(77, -128, 0), App.Vector(77, -108, 0)),
    Part.ArcOfCircle(Part.Circle(App.Vector(57, -108, 0), App.Vector(0, 0, 1), 20), math.radians(-90), math.radians(0)),
    Part.LineSegment(App.Vector(57, -128, 0), App.Vector(77, -128, 0)),
], False)
sketch11.addConstraint([
    Sketcher.Constraint("Tangent", 0, 2, 1, 2),
    Sketcher.Constraint("Tangent", 1, 1, 2, 1),
    Sketcher.Constraint("Coincident", 2, 2, 0, 1),
    Sketcher.Constraint("Vertical", 0),
    Sketcher.Constraint("Horizontal", 2),
    Sketcher.Constraint("Radius", 1, 20.0),
    Sketcher.Constraint("DistanceX", -1, 1, 1, 3, 56.845114),
    Sketcher.Constraint("DistanceY", 1, 3, -1, 1, 108.012994),
])
pocket3 = doc.addObject("PartDesign::Pocket", "Pocket002")
body.addObject(pocket3)
pocket3.Profile = sketch11
pocket3.Length = 143

sketch12 = doc.addObject("Sketcher::SketchObject", "Sketch011")
body.addObject(sketch12)
sketch12.AttachmentSupport = (doc.XZ_Plane, [""])
sketch12.MapMode = "FlatFace"
sketch12.AttachmentOffset = App.Placement(App.Vector(0, 0, -76.845114), App.Rotation())
sketch12.addGeometry(Part.Circle(App.Vector(-43.1, 96.3, 0), App.Vector(0, 0, 1), 2.5), False)
sketch12.addConstraint([
    Sketcher.Constraint("Diameter", 0, 5.0),
    Sketcher.Constraint("DistanceX", 0, 3, -1, 1, 43.138761),
    Sketcher.Constraint("DistanceY", -1, 1, 0, 3, 96.337006),
])
pocket4 = doc.addObject("PartDesign::Pocket", "Pocket003")
body.addObject(pocket4)
pocket4.Profile = sketch12
pocket4.Length = 143
pocket4.Reversed = True

sketch13 = doc.addObject("Sketcher::SketchObject", "Sketch012")
body.addObject(sketch13)
sketch13.AttachmentSupport = (doc.YZ_Plane, [""])
sketch13.MapMode = "FlatFace"
add_polygon(sketch13, [(81, 133), (-51, 133), (-51, 120), (81, 120)])
sketch13.addConstraint([
    Sketcher.Constraint("Horizontal", 0),
    Sketcher.Constraint("Vertical", 1),
    Sketcher.Constraint("Horizontal", 2),
    Sketcher.Constraint("Vertical", 3),
    Sketcher.Constraint("DistanceY", 1, 2, 1, 1, 12.581612),
    Sketcher.Constraint("DistanceX", 0, 2, 0, 1, 132.027793),
    Sketcher.Constraint("DistanceX", -1, 1, 2, 2, 81.03435),
    Sketcher.Constraint("DistanceY", -1, 1, 0, 2, 132.568618),
])
pocket5 = doc.addObject("PartDesign::Pocket", "Pocket004")
body.addObject(pocket5)
pocket5.Profile = sketch13
pocket5.Length = 143
body8 = doc.addObject("PartDesign::Body", "Body007")

sketch14 = doc.addObject("Sketcher::SketchObject", "Sketch013")
body8.addObject(sketch14)
sketch14.AttachmentSupport = (doc.getObject("XY_Plane007"), [""])
sketch14.MapMode = "FlatFace"
add_polygon(sketch14, [(-73, 81), (-73, -54), (15, -54), (15, 81)])
sketch14.addConstraint([
    Sketcher.Constraint("Vertical", 0),
    Sketcher.Constraint("Horizontal", 1),
    Sketcher.Constraint("Vertical", 2),
    Sketcher.Constraint("Horizontal", 3),
    Sketcher.Constraint("DistanceX", 1, 1, 1, 2, 88.113599),
    Sketcher.Constraint("DistanceY", 0, 2, 0, 1, 135.236918),
    Sketcher.Constraint("DistanceX", 0, 2, -1, 1, 72.836029),
    Sketcher.Constraint("DistanceY", 0, 2, -1, 1, 54.423185),
])
pad9 = doc.addObject("PartDesign::Pad", "Pad008")
body8.addObject(pad9)
pad9.Profile = sketch14
pad9.Length = 300
pad9.Midplane = True
doc.recompute()

body9 = doc.addObject("PartDesign::Body", "Body008")
body9.BaseFeature = body8
boolean5 = doc.addObject("PartDesign::Boolean", "Boolean004")
body.addObject(boolean5)
boolean5.Type = "Cut"
boolean5.addObjects([body9])
doc.recompute()

body10 = doc.addObject("PartDesign::Body", "Body009")
body10.BaseFeature = body8
boolean6 = doc.addObject("PartDesign::Boolean", "Boolean005")
body2.addObject(boolean6)
boolean6.Type = "Cut"
boolean6.addObjects([body10])
doc.recompute()

boolean7 = doc.addObject("PartDesign::Boolean", "Boolean006")
body3.addObject(boolean7)
boolean7.Type = "Cut"
boolean7.addObjects([body8])

doc.recompute()
